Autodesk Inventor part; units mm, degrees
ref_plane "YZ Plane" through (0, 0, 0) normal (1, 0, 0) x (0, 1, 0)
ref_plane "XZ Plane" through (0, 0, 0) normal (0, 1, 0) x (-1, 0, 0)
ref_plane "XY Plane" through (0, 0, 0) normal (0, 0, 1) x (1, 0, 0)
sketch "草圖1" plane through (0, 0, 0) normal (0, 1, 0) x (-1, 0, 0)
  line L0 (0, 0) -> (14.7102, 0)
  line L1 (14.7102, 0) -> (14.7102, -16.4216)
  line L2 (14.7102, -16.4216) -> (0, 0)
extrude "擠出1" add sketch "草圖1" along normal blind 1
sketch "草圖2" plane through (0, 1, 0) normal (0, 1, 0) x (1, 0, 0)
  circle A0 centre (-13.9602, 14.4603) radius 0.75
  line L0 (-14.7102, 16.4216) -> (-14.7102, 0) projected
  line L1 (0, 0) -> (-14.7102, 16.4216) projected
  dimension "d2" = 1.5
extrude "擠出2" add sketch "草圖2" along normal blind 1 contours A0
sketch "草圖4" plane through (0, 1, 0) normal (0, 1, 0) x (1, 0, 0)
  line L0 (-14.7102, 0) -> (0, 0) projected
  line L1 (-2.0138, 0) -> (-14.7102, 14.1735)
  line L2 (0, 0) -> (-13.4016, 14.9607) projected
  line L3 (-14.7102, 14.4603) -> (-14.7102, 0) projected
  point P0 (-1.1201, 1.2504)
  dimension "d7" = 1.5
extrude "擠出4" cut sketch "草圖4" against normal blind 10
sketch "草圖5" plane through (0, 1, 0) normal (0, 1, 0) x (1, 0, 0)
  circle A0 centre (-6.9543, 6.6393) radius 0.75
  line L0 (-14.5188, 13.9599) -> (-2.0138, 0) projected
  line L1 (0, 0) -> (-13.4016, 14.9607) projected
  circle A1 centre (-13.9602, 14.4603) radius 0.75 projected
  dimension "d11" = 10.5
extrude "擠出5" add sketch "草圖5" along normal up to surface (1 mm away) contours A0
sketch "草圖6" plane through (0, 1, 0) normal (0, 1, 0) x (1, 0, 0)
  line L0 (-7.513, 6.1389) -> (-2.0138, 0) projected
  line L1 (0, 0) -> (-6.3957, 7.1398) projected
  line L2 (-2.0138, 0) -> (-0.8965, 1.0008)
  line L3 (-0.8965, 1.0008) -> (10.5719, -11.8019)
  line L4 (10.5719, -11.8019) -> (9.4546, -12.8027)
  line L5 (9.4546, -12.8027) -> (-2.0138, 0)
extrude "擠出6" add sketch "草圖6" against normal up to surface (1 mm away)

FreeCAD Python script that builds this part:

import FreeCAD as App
import Part
import Sketcher

V = App.Vector


def add_polygon(sketch, points):
    """Adds a closed chain of lines whose ends are joined by coincident constraints."""
    first, n = sketch.GeometryCount, len(points)
    for a, b in zip(points, points[1:] + points[:1]):
        sketch.addGeometry(Part.LineSegment(App.Vector(*a, 0), App.Vector(*b, 0)), False)
    for i in range(n):
        sketch.addConstraint(Sketcher.Constraint("Coincident", first + i, 2, first + (i + 1) % n, 1))

doc = App.newDocument("Part")
body = doc.addObject("PartDesign::Body", "Body")

sketch1 = body.newObject("Sketcher::SketchObject", "Sketch")
sketch1.AttachmentSupport = (doc.getObject("XZ_Plane"), [""])
sketch1.MapMode = "FlatFace"
add_polygon(sketch1, [(-15, 0), (0, 0), (-15, -16)])
sketch1.addConstraint([
    Sketcher.Constraint("Horizontal", 0),
    Sketcher.Constraint("Vertical", 2),
    Sketcher.Constraint("Coincident", 0, 2, -1, 1),
    Sketcher.Constraint("DistanceX", 0, 1, 0, 2, 14.7102),
    Sketcher.Constraint("DistanceY", 2, 1, 2, 2, 16.4216),
])
pad1 = body.newObject("PartDesign::Pad", "Pad")
pad1.Profile = sketch1
pad1.Length = 1
pad1.Reversed = True

sketch2 = body.newObject("Sketcher::SketchObject", "Sketch001")
sketch2.AttachmentSupport = (doc.getObject("XZ_Plane"), [""])
sketch2.MapMode = "FlatFace"
sketch2.AttachmentOffset = App.Placement(V(0, 0, -1), App.Rotation())
sketch2.addGeometry(Part.Circle(V(-14, -14.5, 0), V(0, 0, 1), 0.8), False)
sketch2.addConstraint([
    Sketcher.Constraint("Diameter", 0, 1.5),
    Sketcher.Constraint("DistanceX", 0, 3, -1, 1, 13.9602),
    Sketcher.Constraint("DistanceY", 0, 3, -1, 1, 14.4603),
])
pad2 = body.newObject("PartDesign::Pad", "Pad001")
pad2.Profile = sketch2
pad2.Length = 1
pad2.Reversed = True

sketch3 = body.newObject("Sketcher::SketchObject", "Sketch002")
sketch3.AttachmentSupport = (doc.getObject("XZ_Plane"), [""])
sketch3.MapMode = "FlatFace"
sketch3.AttachmentOffset = App.Placement(V(0, 0, -1), App.Rotation())
add_polygon(sketch3, [(-15, -14), (-15, 0), (-2, 0)])
sketch3.addConstraint([
    Sketcher.Constraint("Vertical", 0),
    Sketcher.Constraint("Horizontal", 1),
    Sketcher.Constraint("PointOnObject", 0, 2, -1),
    Sketcher.Constraint("DistanceX", 1, 1, 1, 2, 12.6964),
    Sketcher.Constraint("DistanceY", 0, 1, 0, 2, 14.1735),
    Sketcher.Constraint("DistanceX", 0, 2, -1, 1, 14.7102),
])
pocket1 = body.newObject("PartDesign::Pocket", "Pocket")
pocket1.Profile = sketch3
pocket1.Length = 10
pocket1.Reversed = True

sketch4 = body.newObject("Sketcher::SketchObject", "Sketch003")
sketch4.AttachmentSupport = (doc.getObject("XZ_Plane"), [""])
sketch4.MapMode = "FlatFace"
sketch4.AttachmentOffset = App.Placement(V(0, 0, -1), App.Rotation())
sketch4.addGeometry(Part.Circle(V(-7, -6.6, 0), V(0, 0, 1), 0.8), False)
sketch4.addConstraint([
    Sketcher.Constraint("Diameter", 0, 1.5),
    Sketcher.Constraint("DistanceX", 0, 3, -1, 1, 6.9543),
    Sketcher.Constraint("DistanceY", 0, 3, -1, 1, 6.6393),
])
pad3 = body.newObject("PartDesign::Pad", "Pad002")
pad3.Profile = sketch4
pad3.Length = 1
pad3.Reversed = True

sketch5 = body.newObject("Sketcher::SketchObject", "Sketch004")
sketch5.AttachmentSupport = (doc.getObject("XZ_Plane"), [""])
sketch5.MapMode = "FlatFace"
sketch5.AttachmentOffset = App.Placement(V(0, 0, -1), App.Rotation())
add_polygon(sketch5, [(10.6, 11.8), (0, 0), (-0.9, -1), (-2, 0), (9.5, 12.8)])
sketch5.addConstraint([
    Sketcher.Constraint("Coincident", 0, 2, -1, 1),
    Sketcher.Constraint("PointOnObject", 2, 2, -1),
    Sketcher.Constraint("Parallel", 0, 1),
    Sketcher.Constraint("Perpendicular", 1, 2),
    Sketcher.Constraint("Perpendicular", 2, 3),
    Sketcher.Constraint("Perpendicular", 3, 4),
    Sketcher.Constraint("Distance", 2, 1.5),
    Sketcher.Constraint("DistanceX", -1, 1, 4, 2, 10.572),
    Sketcher.Constraint("DistanceY", -1, 1, 4, 2, 11.802),
])
pad4 = body.newObject("PartDesign::Pad", "Pad003")
pad4.Profile = sketch5
pad4.Length = 1

doc.recompute()
